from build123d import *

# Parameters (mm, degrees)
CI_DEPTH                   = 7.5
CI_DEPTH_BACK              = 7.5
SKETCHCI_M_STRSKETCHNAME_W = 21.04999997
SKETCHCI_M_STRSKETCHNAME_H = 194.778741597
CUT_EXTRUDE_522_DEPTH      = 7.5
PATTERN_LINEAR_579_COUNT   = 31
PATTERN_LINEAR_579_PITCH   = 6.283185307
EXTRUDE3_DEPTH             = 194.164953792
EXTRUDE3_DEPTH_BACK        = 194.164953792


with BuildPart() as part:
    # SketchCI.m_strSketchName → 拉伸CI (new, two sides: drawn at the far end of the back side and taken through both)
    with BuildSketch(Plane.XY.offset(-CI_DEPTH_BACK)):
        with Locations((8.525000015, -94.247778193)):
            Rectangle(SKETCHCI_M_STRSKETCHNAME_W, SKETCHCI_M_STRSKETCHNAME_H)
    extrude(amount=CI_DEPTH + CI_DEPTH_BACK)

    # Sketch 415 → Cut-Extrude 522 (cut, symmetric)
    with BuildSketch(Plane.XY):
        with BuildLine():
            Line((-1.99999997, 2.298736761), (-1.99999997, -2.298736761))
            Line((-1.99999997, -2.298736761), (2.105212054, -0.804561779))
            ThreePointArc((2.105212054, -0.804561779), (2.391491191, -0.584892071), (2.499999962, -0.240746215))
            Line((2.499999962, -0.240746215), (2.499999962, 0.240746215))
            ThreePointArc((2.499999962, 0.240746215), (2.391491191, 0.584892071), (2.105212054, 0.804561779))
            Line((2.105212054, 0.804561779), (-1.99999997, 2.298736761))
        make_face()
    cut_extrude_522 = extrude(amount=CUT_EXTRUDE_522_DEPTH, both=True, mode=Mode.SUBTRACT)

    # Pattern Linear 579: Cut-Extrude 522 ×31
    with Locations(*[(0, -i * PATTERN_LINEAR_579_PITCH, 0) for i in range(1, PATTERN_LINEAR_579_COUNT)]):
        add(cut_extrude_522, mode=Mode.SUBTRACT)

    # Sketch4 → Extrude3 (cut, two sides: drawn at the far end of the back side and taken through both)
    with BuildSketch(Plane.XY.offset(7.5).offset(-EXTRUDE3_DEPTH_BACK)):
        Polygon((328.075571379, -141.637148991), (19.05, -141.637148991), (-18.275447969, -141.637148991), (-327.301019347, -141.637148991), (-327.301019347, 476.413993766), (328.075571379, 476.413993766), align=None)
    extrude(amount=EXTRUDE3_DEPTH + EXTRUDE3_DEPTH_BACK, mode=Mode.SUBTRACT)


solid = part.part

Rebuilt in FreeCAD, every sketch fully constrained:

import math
import FreeCAD as App
import Part
import Sketcher
Q = App.Units.Quantity

doc = App.newDocument("Part")
body = doc.addObject("PartDesign::Body", "Body")

# Sketch on XY plane
sketch1 = body.newObject("Sketcher::SketchObject", "Sketch")
sketch1.AttachmentSupport = (doc.getObject("XY_Plane"), [""])
sketch1.MapMode = "FlatFace"
sketch1.addGeometry([
    Part.LineSegment(App.Vector(-2, 3, 0), App.Vector(-2, -192, 0)),
    Part.LineSegment(App.Vector(-2, -192, 0), App.Vector(19, -192, 0)),
    Part.LineSegment(App.Vector(19, -192, 0), App.Vector(19, 3, 0)),
    Part.LineSegment(App.Vector(19, 3, 0), App.Vector(-2, 3, 0)),
], False)
sketch1.addConstraint([
    Sketcher.Constraint("Coincident", 0, 2, 1, 1),
    Sketcher.Constraint("Coincident", 1, 2, 2, 1),
    Sketcher.Constraint("Coincident", 2, 2, 3, 1),
    Sketcher.Constraint("Coincident", 3, 2, 0, 1),
    Sketcher.Constraint("Vertical", 0),
    Sketcher.Constraint("Horizontal", 1),
    Sketcher.Constraint("Vertical", 2),
    Sketcher.Constraint("Horizontal", 3),
    Sketcher.Constraint("DistanceX", 0, 2, -1, 1, 2.0),
    Sketcher.Constraint("DistanceX", 1, 1, 1, 2, 21.05),
    Sketcher.Constraint("DistanceY", 0, 2, 0, 1, 194.778742),
    Sketcher.Constraint("DistanceY", 0, 2, -1, 1, 191.637149),
])
pad1 = body.newObject("PartDesign::Pad", "Pad")
pad1.Profile = sketch1
pad1.Type = "TwoLengths"
pad1.Length = 7.5
pad1.Length2 = 7.5

# Sketch on XY plane
sketch2 = body.newObject("Sketcher::SketchObject", "Sketch001")
sketch2.AttachmentSupport = (doc.getObject("XY_Plane"), [""])
sketch2.MapMode = "FlatFace"
sketch2.addGeometry([
    Part.LineSegment(App.Vector(-2, 2.3, 0), App.Vector(-2, -2.3, 0)),  # 0
    Part.LineSegment(App.Vector(-2, -2.3, 0), App.Vector(2.11, -0.8, 0)),  # 1
    Part.ArcOfCircle(Part.Circle(App.Vector(1.9, -0.24, 0), App.Vector(0, 0, 1), 0.6), math.radians(-70), math.radians(0)),  # 2
    Part.LineSegment(App.Vector(2.5, -0.24, 0), App.Vector(2.5, 0.24, 0)),  # 3
    Part.ArcOfCircle(Part.Circle(App.Vector(1.9, 0.24, 0), App.Vector(0, 0, 1), 0.6), math.radians(0), math.radians(70)),  # 4
    Part.LineSegment(App.Vector(2.11, 0.8, 0), App.Vector(-2, 2.3, 0)),  # 5
], False)
sketch2.addConstraint([
    Sketcher.Constraint("Coincident", 0, 2, 1, 1),
    Sketcher.Constraint("Tangent", 1, 2, 2, 1),
    Sketcher.Constraint("Tangent", 2, 2, 3, 1),
    Sketcher.Constraint("Tangent", 3, 2, 4, 1),
    Sketcher.Constraint("Tangent", 4, 2, 5, 1),
    Sketcher.Constraint("Coincident", 5, 2, 0, 1),
    Sketcher.Constraint("Vertical", 0),
    Sketcher.Constraint("Vertical", 3),
    Sketcher.Constraint("Equal", 2, 4),
    Sketcher.Constraint("Symmetric", 1, 2, 4, 2, -1),
    Sketcher.Constraint("Radius", 2, 0.6),
    Sketcher.Constraint("Angle", 1, Q("20 deg")),
    Sketcher.Constraint("DistanceX", 0, 2, -1, 1, 2.0),
    Sketcher.Constraint("DistanceX", -1, 1, 2, 3, 1.9),
    Sketcher.Constraint("DistanceY", 0, 2, 0, 1, 4.597474),
])
pocket1 = body.newObject("PartDesign::Pocket", "Pocket")
pocket1.Profile = sketch2
pocket1.Length = 15
pocket1.Midplane = True
doc.recompute()

linearpattern = body.newObject("PartDesign::LinearPattern", "LinearPattern")
linearpattern.Originals = [pocket1]
linearpattern.Direction = (doc.getObject("Y_Axis"), [""])
linearpattern.Mode = "offset"
linearpattern.Offset = 6.283185
linearpattern.Occurrences = 31
linearpattern.Reversed = True
body.Tip = linearpattern

# Sketch on XY plane
sketch3 = body.newObject("Sketcher::SketchObject", "Sketch002")
sketch3.AttachmentSupport = (doc.getObject("XY_Plane"), [""])
sketch3.MapMode = "FlatFace"
sketch3.AttachmentOffset = App.Placement(App.Vector(0, 0, 7.5), App.Rotation())
sketch3.addGeometry([
    Part.LineSegment(App.Vector(-327, -142, 0), App.Vector(328, -142, 0)),
    Part.LineSegment(App.Vector(328, -142, 0), App.Vector(328, 476, 0)),
    Part.LineSegment(App.Vector(328, 476, 0), App.Vector(-327, 476, 0)),
    Part.LineSegment(App.Vector(-327, 476, 0), App.Vector(-327, -142, 0)),
], False)
sketch3.addConstraint([
    Sketcher.Constraint("Coincident", 0, 2, 1, 1),
    Sketcher.Constraint("Coincident", 1, 2, 2, 1),
    Sketcher.Constraint("Coincident", 2, 2, 3, 1),
    Sketcher.Constraint("Coincident", 3, 2, 0, 1),
    Sketcher.Constraint("Horizontal", 0),
    Sketcher.Constraint("Vertical", 1),
    Sketcher.Constraint("Horizontal", 2),
    Sketcher.Constraint("Vertical", 3),
    Sketcher.Constraint("DistanceX", 0, 1, 0, 2, 655.376591),
    Sketcher.Constraint("DistanceY", 1, 1, 1, 2, 618.051143),
    Sketcher.Constraint("DistanceX", -1, 1, 0, 2, 328.075571),
    Sketcher.Constraint("DistanceY", 0, 2, -1, 1, 141.637149),
])
pocket2 = body.newObject("PartDesign::Pocket", "Pocket001")
pocket2.Profile = sketch3
pocket2.Type = "ThroughAll"
pocket2.Midplane = True

doc.recompute()
